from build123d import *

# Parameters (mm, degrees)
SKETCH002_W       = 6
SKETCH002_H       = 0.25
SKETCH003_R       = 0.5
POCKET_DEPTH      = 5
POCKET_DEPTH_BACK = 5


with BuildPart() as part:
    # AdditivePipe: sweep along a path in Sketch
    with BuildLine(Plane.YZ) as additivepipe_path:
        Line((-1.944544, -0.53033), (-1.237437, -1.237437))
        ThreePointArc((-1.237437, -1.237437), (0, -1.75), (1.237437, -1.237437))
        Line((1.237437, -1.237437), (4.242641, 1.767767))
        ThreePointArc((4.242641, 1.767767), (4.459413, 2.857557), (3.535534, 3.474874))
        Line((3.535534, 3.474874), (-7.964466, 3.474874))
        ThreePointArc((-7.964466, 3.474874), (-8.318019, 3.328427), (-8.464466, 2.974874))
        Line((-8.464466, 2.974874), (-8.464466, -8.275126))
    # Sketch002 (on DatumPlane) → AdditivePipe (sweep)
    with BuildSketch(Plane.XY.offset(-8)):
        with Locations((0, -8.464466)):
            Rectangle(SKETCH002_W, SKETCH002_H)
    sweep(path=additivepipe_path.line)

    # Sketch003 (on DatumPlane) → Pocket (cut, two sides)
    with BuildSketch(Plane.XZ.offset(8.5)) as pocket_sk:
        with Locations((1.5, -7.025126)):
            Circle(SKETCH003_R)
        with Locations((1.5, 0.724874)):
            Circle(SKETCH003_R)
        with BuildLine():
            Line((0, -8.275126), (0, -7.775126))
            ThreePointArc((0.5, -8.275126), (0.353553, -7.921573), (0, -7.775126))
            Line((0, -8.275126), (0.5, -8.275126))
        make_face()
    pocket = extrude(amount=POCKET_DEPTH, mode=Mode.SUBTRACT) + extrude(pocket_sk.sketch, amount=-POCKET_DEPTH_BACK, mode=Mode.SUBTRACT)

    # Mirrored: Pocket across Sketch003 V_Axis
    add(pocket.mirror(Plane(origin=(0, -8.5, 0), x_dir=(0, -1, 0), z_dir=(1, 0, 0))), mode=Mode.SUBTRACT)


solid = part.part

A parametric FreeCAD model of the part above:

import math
import FreeCAD as App
import Part
import Sketcher
Q = App.Units.Quantity

doc = App.newDocument("Part")
body = doc.addObject("PartDesign::Body", "Body")

# Sketch on XY plane
sketch1 = body.newObject("Sketcher::SketchObject", "Sketch")
sketch1.AttachmentSupport = (doc.getObject("XY_Plane"), [""])
sketch1.MapMode = "FlatFace"
sketch1.AttachmentOffset = App.Placement(App.Vector(0, 0, -8), App.Rotation())
sketch1.addGeometry(Part.LineSegment(App.Vector(-3, -8.34, 0), App.Vector(-3, -8.59, 0)), False)
sketch1.addGeometry(Part.LineSegment(App.Vector(-3, -8.59, 0), App.Vector(3, -8.59, 0)), False)
sketch1.addGeometry(Part.LineSegment(App.Vector(3, -8.59, 0), App.Vector(3, -8.34, 0)), False)
sketch1.addGeometry(Part.LineSegment(App.Vector(3, -8.34, 0), App.Vector(-3, -8.34, 0)), False)
sketch1.addConstraint(Sketcher.Constraint("Coincident", 0, 2, 1, 1))
sketch1.addConstraint(Sketcher.Constraint("Coincident", 1, 2, 2, 1))
sketch1.addConstraint(Sketcher.Constraint("Coincident", 2, 2, 3, 1))
sketch1.addConstraint(Sketcher.Constraint("Coincident", 3, 2, 0, 1))
sketch1.addConstraint(Sketcher.Constraint("Vertical", 0))
sketch1.addConstraint(Sketcher.Constraint("Horizontal", 1))
sketch1.addConstraint(Sketcher.Constraint("Vertical", 2))
sketch1.addConstraint(Sketcher.Constraint("Horizontal", 3))
sketch1.addConstraint(Sketcher.Constraint("DistanceX", 1, 1, 1, 2, Q("6 mm")))
sketch1.addConstraint(Sketcher.Constraint("DistanceX", 0, 2, -1, 1, Q("3 mm")))
sketch1.addConstraint(Sketcher.Constraint("DistanceY", 0, 2, 0, 1, Q("0.25 mm")))
sketch1.addConstraint(Sketcher.Constraint("DistanceY", 0, 2, -1, 1, Q("8.589466 mm")))

# Sketch on YZ plane
sketch2 = body.newObject("Sketcher::SketchObject", "Sketch001")
sketch2.AttachmentSupport = (doc.getObject("YZ_Plane"), [""])
sketch2.MapMode = "FlatFace"
sketch2.addGeometry(Part.LineSegment(App.Vector(-1.9, -0.5, 0), App.Vector(-1.2, -1.2, 0)), False)
sketch2.addGeometry(Part.ArcOfCircle(Part.Circle(App.Vector(0, 0, 0), App.Vector(0, 0, 1), 1.8), math.radians(-135), math.radians(-45)), False)
sketch2.addGeometry(Part.LineSegment(App.Vector(1.2, -1.2, 0), App.Vector(4.2, 1.8, 0)), False)
sketch2.addGeometry(Part.ArcOfCircle(Part.Circle(App.Vector(3.5, 2.5, 0), App.Vector(0, 0, 1), 1), math.radians(-45), math.radians(90)), False)
sketch2.addGeometry(Part.LineSegment(App.Vector(3.5, 3.5, 0), App.Vector(-8, 3.5, 0)), False)
sketch2.addGeometry(Part.ArcOfCircle(Part.Circle(App.Vector(-8, 3, 0), App.Vector(0, 0, 1), 0.5), math.radians(90), math.radians(180)), False)
sketch2.addGeometry(Part.LineSegment(App.Vector(-8.5, 3, 0), App.Vector(-8.5, -8.3, 0)), False)
sketch2.addConstraint(Sketcher.Constraint("Tangent", 0, 2, 1, 1))
sketch2.addConstraint(Sketcher.Constraint("Tangent", 1, 2, 2, 1))
sketch2.addConstraint(Sketcher.Constraint("Tangent", 2, 2, 3, 1))
sketch2.addConstraint(Sketcher.Constraint("Tangent", 3, 2, 4, 1))
sketch2.addConstraint(Sketcher.Constraint("Coincident", 4, 2, 5, 1))
sketch2.addConstraint(Sketcher.Constraint("Coincident", 5, 2, 6, 1))
sketch2.addConstraint(Sketcher.Constraint("Horizontal", 4))
sketch2.addConstraint(Sketcher.Constraint("Vertical", 6))
sketch2.addConstraint(Sketcher.Constraint("Coincident", 1, 3, -1, 1))
sketch2.addConstraint(Sketcher.Constraint("Perpendicular", 0, 2))
sketch2.addConstraint(Sketcher.Constraint("Horizontal", 0, 2, 1, 2))
sketch2.addConstraint(Sketcher.Constraint("Vertical", 5, 3, 4, 2))
sketch2.addConstraint(Sketcher.Constraint("Radius", 3, Q("1.000001 mm")))
sketch2.addConstraint(Sketcher.Constraint("Radius", 5, Q("0.500001 mm")))
sketch2.addConstraint(Sketcher.Constraint("Radius", 1, Q("1.750001 mm")))
sketch2.addConstraint(Sketcher.Constraint("Distance", 0, Q("1 mm")))
sketch2.addConstraint(Sketcher.Constraint("DistanceX", 4, 2, 4, 1, Q("11.5 mm")))
sketch2.addConstraint(Sketcher.Constraint("DistanceY", 6, 2, 6, 1, Q("11.25 mm")))
sketch2.addConstraint(Sketcher.Constraint("DistanceY", 5, 2, 4, 2, Q("0.5 mm")))
sketch2.addConstraint(Sketcher.Constraint("Distance", 2, Q("4.25 mm")))
doc.recompute()

additivepipe = body.newObject("PartDesign::AdditivePipe", "AdditivePipe")
additivepipe.Profile = sketch1
additivepipe.Spine = (sketch2, ["Edge1", "Edge2", "Edge3", "Edge4", "Edge5", "Edge6", "Edge7"])

# Sketch on XZ plane
sketch3 = body.newObject("Sketcher::SketchObject", "Sketch002")
sketch3.AttachmentSupport = (doc.getObject("XZ_Plane"), [""])
sketch3.MapMode = "FlatFace"
sketch3.AttachmentOffset = App.Placement(App.Vector(0, 0, 8.5), App.Rotation())
sketch3.addGeometry(Part.Circle(App.Vector(1.5, -7, 0), App.Vector(0, 0, 1), 0.5), False)
sketch3.addGeometry(Part.Circle(App.Vector(1.5, 0.7, 0), App.Vector(0, 0, 1), 0.5), False)
sketch3.addGeometry(Part.LineSegment(App.Vector(0, -7.8, 0), App.Vector(0, -8.3, 0)), False)
sketch3.addGeometry(Part.LineSegment(App.Vector(0, -8.3, 0), App.Vector(0.5, -8.3, 0)), False)
sketch3.addGeometry(Part.ArcOfCircle(Part.Circle(App.Vector(0, -8.3, 0), App.Vector(0, 0, 1), 0.5), math.radians(0), math.radians(90)), False)
sketch3.addConstraint(Sketcher.Constraint("Coincident", 2, 2, 3, 1))
sketch3.addConstraint(Sketcher.Constraint("Coincident", 3, 2, 4, 1))
sketch3.addConstraint(Sketcher.Constraint("Coincident", 4, 2, 2, 1))
sketch3.addConstraint(Sketcher.Constraint("Vertical", 2))
sketch3.addConstraint(Sketcher.Constraint("Horizontal", 3))
sketch3.addConstraint(Sketcher.Constraint("Coincident", 2, 2, 4, 3))
sketch3.addConstraint(Sketcher.Constraint("Equal", 0, 1))
sketch3.addConstraint(Sketcher.Constraint("Equal", 1, 4))
sketch3.addConstraint(Sketcher.Constraint("PointOnObject", 4, 3, -2))
sketch3.addConstraint(Sketcher.Constraint("Vertical", 0, 3, 1, 3))
sketch3.addConstraint(Sketcher.Constraint("Diameter", 0, Q("1 mm")))
sketch3.addConstraint(Sketcher.Constraint("DistanceY", 4, 3, 1, 3, Q("9.000001 mm")))
sketch3.addConstraint(Sketcher.Constraint("DistanceX", 3, 2, 0, 3, Q("1 mm")))
sketch3.addConstraint(Sketcher.Constraint("DistanceY", 0, 3, 1, 3, Q("7.75 mm")))
sketch3.addConstraint(Sketcher.Constraint("DistanceY", 0, 3, -1, 1, Q("7.025126 mm")))
pocket1 = body.newObject("PartDesign::Pocket", "Pocket")
pocket1.Profile = sketch3
pocket1.Type = "TwoLengths"
pocket1.Length = 5
pocket1.Length2 = 5
pocket1.Reversed = True
doc.recompute()

mirrored = body.newObject("PartDesign::Mirrored", "Mirrored")
mirrored.Originals = [pocket1]
mirrored.MirrorPlane = (doc.getObject("YZ_Plane"), [""])
body.Tip = mirrored

doc.recompute()
